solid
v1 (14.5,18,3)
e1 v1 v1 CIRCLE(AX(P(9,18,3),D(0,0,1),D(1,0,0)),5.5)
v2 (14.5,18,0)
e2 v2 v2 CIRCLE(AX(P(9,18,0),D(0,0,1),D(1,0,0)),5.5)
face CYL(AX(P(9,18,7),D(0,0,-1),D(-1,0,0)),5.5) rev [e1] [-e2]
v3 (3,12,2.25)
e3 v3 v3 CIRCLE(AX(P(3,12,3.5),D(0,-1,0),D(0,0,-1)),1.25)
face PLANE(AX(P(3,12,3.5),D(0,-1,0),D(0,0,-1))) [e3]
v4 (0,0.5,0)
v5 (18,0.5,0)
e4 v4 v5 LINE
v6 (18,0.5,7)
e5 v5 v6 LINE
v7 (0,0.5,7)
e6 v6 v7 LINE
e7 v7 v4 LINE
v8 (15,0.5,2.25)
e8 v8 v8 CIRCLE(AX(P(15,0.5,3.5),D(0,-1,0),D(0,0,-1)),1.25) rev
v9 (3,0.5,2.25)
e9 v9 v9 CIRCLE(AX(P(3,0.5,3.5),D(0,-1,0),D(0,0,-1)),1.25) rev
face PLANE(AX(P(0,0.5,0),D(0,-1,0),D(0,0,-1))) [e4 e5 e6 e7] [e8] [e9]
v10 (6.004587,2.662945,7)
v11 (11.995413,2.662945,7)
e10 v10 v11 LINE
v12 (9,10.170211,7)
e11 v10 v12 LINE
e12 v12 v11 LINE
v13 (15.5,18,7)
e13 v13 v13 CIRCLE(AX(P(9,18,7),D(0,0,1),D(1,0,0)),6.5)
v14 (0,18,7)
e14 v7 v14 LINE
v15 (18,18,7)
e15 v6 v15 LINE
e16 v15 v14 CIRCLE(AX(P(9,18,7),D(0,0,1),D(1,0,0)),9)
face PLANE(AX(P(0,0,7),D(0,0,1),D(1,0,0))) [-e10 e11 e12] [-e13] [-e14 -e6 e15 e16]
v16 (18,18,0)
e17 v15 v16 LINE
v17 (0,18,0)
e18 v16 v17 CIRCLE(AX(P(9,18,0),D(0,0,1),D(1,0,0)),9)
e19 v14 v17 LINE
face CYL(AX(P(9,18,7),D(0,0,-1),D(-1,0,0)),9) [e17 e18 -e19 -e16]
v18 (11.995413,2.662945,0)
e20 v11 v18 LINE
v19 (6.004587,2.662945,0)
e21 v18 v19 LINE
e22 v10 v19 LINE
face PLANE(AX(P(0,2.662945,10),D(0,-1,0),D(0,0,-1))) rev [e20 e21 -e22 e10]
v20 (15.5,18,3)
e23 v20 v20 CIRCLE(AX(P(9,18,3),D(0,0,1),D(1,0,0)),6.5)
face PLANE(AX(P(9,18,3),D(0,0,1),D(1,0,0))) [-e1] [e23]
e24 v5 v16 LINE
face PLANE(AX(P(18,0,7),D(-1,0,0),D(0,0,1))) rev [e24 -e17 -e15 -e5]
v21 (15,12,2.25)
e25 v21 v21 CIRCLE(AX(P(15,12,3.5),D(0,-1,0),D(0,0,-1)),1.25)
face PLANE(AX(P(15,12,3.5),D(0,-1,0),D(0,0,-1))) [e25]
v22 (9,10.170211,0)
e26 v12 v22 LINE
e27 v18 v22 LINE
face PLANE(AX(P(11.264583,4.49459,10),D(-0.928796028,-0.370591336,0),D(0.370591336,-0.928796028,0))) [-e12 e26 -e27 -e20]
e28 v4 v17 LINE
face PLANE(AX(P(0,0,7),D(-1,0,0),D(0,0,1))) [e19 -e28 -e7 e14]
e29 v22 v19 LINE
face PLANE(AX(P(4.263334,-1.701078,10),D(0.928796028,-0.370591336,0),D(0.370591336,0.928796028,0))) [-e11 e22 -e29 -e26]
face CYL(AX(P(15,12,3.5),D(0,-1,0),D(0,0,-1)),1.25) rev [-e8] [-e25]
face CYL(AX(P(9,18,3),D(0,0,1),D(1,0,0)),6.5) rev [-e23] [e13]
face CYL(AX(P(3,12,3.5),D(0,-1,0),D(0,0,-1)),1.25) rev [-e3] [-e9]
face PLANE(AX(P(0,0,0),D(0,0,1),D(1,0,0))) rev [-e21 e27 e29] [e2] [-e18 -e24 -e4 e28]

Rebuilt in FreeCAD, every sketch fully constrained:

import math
import FreeCAD as App
import Part
import Sketcher
Q = App.Units.Quantity


def add_polygon(sketch, points):
    """Adds a closed chain of lines whose ends are joined by coincident constraints."""
    first, n = sketch.GeometryCount, len(points)
    for a, b in zip(points, points[1:] + points[:1]):
        sketch.addGeometry(Part.LineSegment(App.Vector(*a, 0), App.Vector(*b, 0)), False)
    for i in range(n):
        sketch.addConstraint(Sketcher.Constraint("Coincident", first + i, 2, first + (i + 1) % n, 1))

doc = App.newDocument("Part")
body = doc.addObject("PartDesign::Body", "Body")

# Sketch on XY plane
sketch1 = body.newObject("Sketcher::SketchObject", "Sketch")
sketch1.AttachmentSupport = (doc.getObject("XY_Plane"), [""])
sketch1.MapMode = "FlatFace"
sketch1.addGeometry([
    Part.ArcOfCircle(Part.Circle(App.Vector(9, 18, 0), App.Vector(0, 0, 1), 9), math.radians(0), math.radians(180)),  # 0
    Part.LineSegment(App.Vector(0, 18, 0), App.Vector(0, 0, 0)),  # 1
    Part.LineSegment(App.Vector(0, 0, 0), App.Vector(18, 0, 0)),  # 2
    Part.LineSegment(App.Vector(18, 0, 0), App.Vector(18, 18, 0)),  # 3
    Part.Circle(App.Vector(9, 18, 0), App.Vector(0, 0, 1), 6),  # 4
], False)
sketch1.addConstraint([
    Sketcher.Constraint("Tangent", 0, 2, 1, 1),
    Sketcher.Constraint("Coincident", 1, 2, 2, 1),
    Sketcher.Constraint("Coincident", 2, 2, 3, 1),
    Sketcher.Constraint("Tangent", 3, 2, 0, 1),
    Sketcher.Constraint("Vertical", 1),
    Sketcher.Constraint("Horizontal", 2),
    Sketcher.Constraint("Vertical", 3),
    Sketcher.Constraint("Coincident", 1, 2, -1, 1),
    Sketcher.Constraint("Coincident", 4, 3, 0, 3),
    Sketcher.Constraint("Equal", 2, 1),
    Sketcher.Constraint("Diameter", 4, Q("11 mm")),
    Sketcher.Constraint("Radius", 0, Q("9 mm")),
])
pad1 = body.newObject("PartDesign::Pad", "Pad")
pad1.Profile = sketch1
pad1.Length = 7

# Sketch on XZ plane
sketch2 = body.newObject("Sketcher::SketchObject", "Sketch001")
sketch2.AttachmentSupport = (doc.getObject("XZ_Plane"), [""])
sketch2.MapMode = "FlatFace"
sketch2.addGeometry([
    Part.Circle(App.Vector(15, 3.5, 0), App.Vector(0, 0, 1), 1.2),
    Part.Circle(App.Vector(3, 3.5, 0), App.Vector(0, 0, 1), 1.2),
], False)
sketch2.addConstraint([
    Sketcher.Constraint("Equal", 0, 1),
    Sketcher.Constraint("Horizontal", 0, 3, 1, 3),
    Sketcher.Constraint("Diameter", 0, Q("2.5 mm")),
    Sketcher.Constraint("DistanceX", -1, 1, 0, 3, Q("15 mm")),
    Sketcher.Constraint("DistanceX", -1, 1, 1, 3, Q("3 mm")),
    Sketcher.Constraint("DistanceY", -1, 1, 0, 3, Q("3.5 mm")),
])
pocket1 = body.newObject("PartDesign::Pocket", "Pocket")
pocket1.Profile = sketch2
pocket1.Length = 12

# Sketch on XY plane
sketch3 = body.newObject("Sketcher::SketchObject", "Sketch002")
sketch3.AttachmentSupport = (doc.getObject("XY_Plane"), [""])
sketch3.MapMode = "FlatFace"
sketch3.AttachmentOffset = App.Placement(App.Vector(0, 0, 7), App.Rotation())
sketch3.addGeometry(Part.Circle(App.Vector(9, 18, 0), App.Vector(0, 0, 1), 6), False)
sketch3.addConstraint([
    Sketcher.Constraint("Diameter", 0, Q("13 mm")),
    Sketcher.Constraint("DistanceX", -1, 1, 0, 3, Q("9 mm")),
    Sketcher.Constraint("DistanceY", -1, 1, 0, 3, Q("18 mm")),
])
pocket2 = body.newObject("PartDesign::Pocket", "Pocket001")
pocket2.Profile = sketch3
pocket2.Length = 4

# Sketch on XZ plane
sketch4 = body.newObject("Sketcher::SketchObject", "Sketch003")
sketch4.AttachmentSupport = (doc.getObject("XZ_Plane"), [""])
sketch4.MapMode = "FlatFace"
add_polygon(sketch4, [(0, 7), (0, 0), (18, 0), (18, 7)])  # lines 0-3
sketch4.addConstraint([
    Sketcher.Constraint("Vertical", 0),
    Sketcher.Constraint("Horizontal", 1),
    Sketcher.Constraint("Vertical", 2),
    Sketcher.Constraint("Horizontal", 3),
    Sketcher.Constraint("Coincident", 0, 2, -1, 1),
    Sketcher.Constraint("DistanceX", 1, 1, 1, 2, Q("18 mm")),
    Sketcher.Constraint("DistanceY", 0, 2, 0, 1, Q("7 mm")),
])
pocket3 = body.newObject("PartDesign::Pocket", "Pocket002")
pocket3.Profile = sketch4
pocket3.Length = 0.5

# Sketch on XY plane
sketch5 = body.newObject("Sketcher::SketchObject", "Sketch004")
sketch5.AttachmentSupport = (doc.getObject("XY_Plane"), [""])
sketch5.MapMode = "FlatFace"
add_polygon(sketch5, [(6, 3), (9, 10), (12, 3)])  # lines 0-2
sketch5.addConstraint([
    Sketcher.Constraint("Horizontal", 2),
    Sketcher.Constraint("Equal", 0, 1),
    Sketcher.Constraint("DistanceX", -1, 1, 0, 2, Q("9 mm")),
    Sketcher.Constraint("DistanceX", 2, 2, 2, 1, Q("5.990825 mm")),
    Sketcher.Constraint("DistanceY", -1, 1, 0, 2, Q("10.170211 mm")),
    Sketcher.Constraint("Distance", 0, Q("8.082792 mm")),
])
pocket4 = body.newObject("PartDesign::Pocket", "Pocket003")
pocket4.Profile = sketch5
pocket4.Length = 10
pocket4.Reversed = True

doc.recompute()
